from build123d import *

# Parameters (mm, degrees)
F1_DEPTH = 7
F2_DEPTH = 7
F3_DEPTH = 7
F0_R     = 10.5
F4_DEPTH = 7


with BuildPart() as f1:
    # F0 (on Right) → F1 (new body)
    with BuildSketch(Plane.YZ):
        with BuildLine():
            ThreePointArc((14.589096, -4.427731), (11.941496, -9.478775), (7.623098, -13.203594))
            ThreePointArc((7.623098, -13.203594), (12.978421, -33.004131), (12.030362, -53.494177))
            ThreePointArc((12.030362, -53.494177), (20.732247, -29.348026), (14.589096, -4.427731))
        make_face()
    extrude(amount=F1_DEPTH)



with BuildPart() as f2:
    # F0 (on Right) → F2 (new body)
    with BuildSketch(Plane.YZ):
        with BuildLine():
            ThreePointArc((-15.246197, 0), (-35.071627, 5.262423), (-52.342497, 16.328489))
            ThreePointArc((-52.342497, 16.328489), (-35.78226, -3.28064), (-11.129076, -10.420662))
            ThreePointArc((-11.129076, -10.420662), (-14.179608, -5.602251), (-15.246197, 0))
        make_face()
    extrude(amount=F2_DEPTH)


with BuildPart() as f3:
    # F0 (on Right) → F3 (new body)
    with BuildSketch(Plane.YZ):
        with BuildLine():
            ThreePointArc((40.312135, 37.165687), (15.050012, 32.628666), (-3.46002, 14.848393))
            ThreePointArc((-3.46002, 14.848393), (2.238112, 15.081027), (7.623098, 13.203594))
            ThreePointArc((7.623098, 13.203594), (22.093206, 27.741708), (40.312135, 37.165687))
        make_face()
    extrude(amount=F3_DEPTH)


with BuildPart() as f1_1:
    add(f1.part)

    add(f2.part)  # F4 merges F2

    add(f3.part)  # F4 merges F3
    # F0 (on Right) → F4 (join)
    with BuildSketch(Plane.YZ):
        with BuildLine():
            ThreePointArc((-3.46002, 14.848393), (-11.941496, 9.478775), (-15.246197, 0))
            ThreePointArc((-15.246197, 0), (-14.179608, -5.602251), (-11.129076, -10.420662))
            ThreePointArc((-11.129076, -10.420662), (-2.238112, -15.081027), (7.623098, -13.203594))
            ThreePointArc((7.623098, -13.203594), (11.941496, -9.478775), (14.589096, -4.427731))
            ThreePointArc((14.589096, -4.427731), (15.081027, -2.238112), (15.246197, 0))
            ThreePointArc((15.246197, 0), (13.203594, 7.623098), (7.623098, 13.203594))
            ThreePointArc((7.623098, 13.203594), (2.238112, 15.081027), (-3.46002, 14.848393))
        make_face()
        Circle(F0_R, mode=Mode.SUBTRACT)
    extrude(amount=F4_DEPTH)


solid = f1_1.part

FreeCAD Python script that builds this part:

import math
import FreeCAD as App
import Part
import Sketcher
from FreeCAD import Vector

doc = App.newDocument("Part")
body = doc.addObject("PartDesign::Body", "Body")

# Sketch on YZ plane
sketch1 = body.newObject("Sketcher::SketchObject", "Sketch")
sketch1.AttachmentSupport = (doc.getObject("YZ_Plane"), [""])
sketch1.MapMode = "FlatFace"
sketch1.addGeometry(Part.ArcOfCircle(Part.Circle(Vector(0, 0, 0), Vector(0, 0, 1), 15), math.radians(-60), math.radians(-17)), False)
sketch1.addGeometry(Part.ArcOfCircle(Part.Circle(Vector(-53, -40, 0), Vector(0, 0, 1), 66), math.radians(-12), math.radians(24)), False)
sketch1.addGeometry(Part.ArcOfCircle(Part.Circle(Vector(-24, -27, 0), Vector(0, 0, 1), 44), math.radians(-37), math.radians(31)), False)
sketch1.addConstraint(Sketcher.Constraint("Coincident", 0, 1, 1, 2))
sketch1.addConstraint(Sketcher.Constraint("Coincident", 1, 1, 2, 1))
sketch1.addConstraint(Sketcher.Constraint("Coincident", 2, 2, 0, 2))
sketch1.addConstraint(Sketcher.Constraint("Coincident", 0, 3, -1, 1))
sketch1.addConstraint(Sketcher.Constraint("Radius", 2, 44.315521))
sketch1.addConstraint(Sketcher.Constraint("Radius", 0, 15.246205))
sketch1.addConstraint(Sketcher.Constraint("Radius", 1, 66.352625))
sketch1.addConstraint(Sketcher.Constraint("DistanceX", 0, 1, 2, 2, 6.965998))
sketch1.addConstraint(Sketcher.Constraint("DistanceY", 0, 1, 0, 3, 13.2036))
sketch1.addConstraint(Sketcher.Constraint("DistanceX", 2, 3, 1, 1, 35.553501))
sketch1.addConstraint(Sketcher.Constraint("DistanceX", 1, 3, -1, 1, 52.98076))
pad1 = body.newObject("PartDesign::Pad", "Pad")
pad1.Profile = sketch1
pad1.Length = 7
body2 = doc.addObject("PartDesign::Body", "Body001")

# Sketch on YZ plane
sketch2 = body2.newObject("Sketcher::SketchObject", "Sketch001")
sketch2.AttachmentSupport = (doc.getObject("YZ_Plane001"), [""])
sketch2.MapMode = "FlatFace"
sketch2.addGeometry(Part.ArcOfCircle(Part.Circle(Vector(-8, 66, 0), Vector(0, 0, 1), 66), math.radians(-132), math.radians(-96)), False)
sketch2.addGeometry(Part.ArcOfCircle(Part.Circle(Vector(-12, 34, 0), Vector(0, 0, 1), 44), math.radians(-157), math.radians(-89)), False)
sketch2.addGeometry(Part.ArcOfCircle(Part.Circle(Vector(0, 0, 0), Vector(0, 0, 1), 15), math.radians(-180), math.radians(-137)), False)
sketch2.addConstraint(Sketcher.Constraint("Coincident", 0, 1, 1, 1))
sketch2.addConstraint(Sketcher.Constraint("Coincident", 1, 2, 2, 2))
sketch2.addConstraint(Sketcher.Constraint("Coincident", 2, 1, 0, 2))
sketch2.addConstraint(Sketcher.Constraint("PointOnObject", 2, 1, -1))
sketch2.addConstraint(Sketcher.Constraint("Radius", 2, 15.246209))
sketch2.addConstraint(Sketcher.Constraint("Radius", 0, 66.352623))
sketch2.addConstraint(Sketcher.Constraint("Radius", 1, 44.315517))
sketch2.addConstraint(Sketcher.Constraint("DistanceX", 0, 1, 2, 1, 37.0963))
sketch2.addConstraint(Sketcher.Constraint("DistanceY", -1, 1, 0, 1, 16.328489))
sketch2.addConstraint(Sketcher.Constraint("DistanceY", 1, 2, -1, 1, 10.420662))
sketch2.addConstraint(Sketcher.Constraint("DistanceY", 1, 3, 0, 3, 32.100561))
sketch2.addConstraint(Sketcher.Constraint("DistanceX", 0, 3, -1, 1, 8.340474))
pad2 = body2.newObject("PartDesign::Pad", "Pad001")
pad2.Profile = sketch2
pad2.Length = 7
body3 = doc.addObject("PartDesign::Body", "Body002")

# Sketch on YZ plane
sketch3 = body3.newObject("Sketcher::SketchObject", "Sketch002")
sketch3.AttachmentSupport = (doc.getObject("YZ_Plane002"), [""])
sketch3.MapMode = "FlatFace"
sketch3.addGeometry(Part.ArcOfCircle(Part.Circle(Vector(35, -7, 0), Vector(0, 0, 1), 44), math.radians(83), math.radians(151)), False)
sketch3.addGeometry(Part.ArcOfCircle(Part.Circle(Vector(0, 0, 0), Vector(0, 0, 1), 15), math.radians(60), math.radians(103)), False)
sketch3.addGeometry(Part.ArcOfCircle(Part.Circle(Vector(61, -26, 0), Vector(0, 0, 1), 66), math.radians(108), math.radians(144)), False)
sketch3.addConstraint(Sketcher.Constraint("Coincident", 0, 2, 1, 2))
sketch3.addConstraint(Sketcher.Constraint("Coincident", 1, 1, 2, 2))
sketch3.addConstraint(Sketcher.Constraint("Coincident", 2, 1, 0, 1))
sketch3.addConstraint(Sketcher.Constraint("Coincident", 1, 3, -1, 1))
sketch3.addConstraint(Sketcher.Constraint("Radius", 0, 44.315514))
sketch3.addConstraint(Sketcher.Constraint("Radius", 1, 15.246194))
sketch3.addConstraint(Sketcher.Constraint("Radius", 2, 66.352634))
sketch3.addConstraint(Sketcher.Constraint("DistanceY", 1, 1, 0, 2, 1.644799))
sketch3.addConstraint(Sketcher.Constraint("DistanceX", -1, 1, 0, 3, 35.17905))
sketch3.addConstraint(Sketcher.Constraint("DistanceY", 0, 3, -1, 1, 6.851539))
sketch3.addConstraint(Sketcher.Constraint("DistanceY", 2, 3, -1, 1, 25.77309))
pad3 = body3.newObject("PartDesign::Pad", "Pad002")
pad3.Profile = sketch3
pad3.Length = 7
body.AllowCompound = True
doc.recompute()

boolean = body.newObject("PartDesign::Boolean", "Boolean")
boolean.Type = "Fuse"
boolean.addObjects([body2])
doc.recompute()

boolean2 = body.newObject("PartDesign::Boolean", "Boolean001")
boolean2.Type = "Fuse"
boolean2.addObjects([body3])

# Sketch on YZ plane
sketch4 = body.newObject("Sketcher::SketchObject", "Sketch003")
sketch4.AttachmentSupport = (doc.getObject("YZ_Plane"), [""])
sketch4.MapMode = "FlatFace"
sketch4.addGeometry(Part.ArcOfCircle(Part.Circle(Vector(0, 0, 0), Vector(0, 0, 1), 15.2), math.radians(103), math.radians(180)), False)
sketch4.addGeometry(Part.ArcOfCircle(Part.Circle(Vector(0, 0, 0), Vector(0, 0, 1), 15.2), math.radians(-180), math.radians(-137)), False)
sketch4.addGeometry(Part.ArcOfCircle(Part.Circle(Vector(0, 0, 0), Vector(0, 0, 1), 15.2), math.radians(-137), math.radians(-60)), False)
sketch4.addGeometry(Part.ArcOfCircle(Part.Circle(Vector(0, 0, 0), Vector(0, 0, 1), 15.2), math.radians(-60), math.radians(-17)), False)
sketch4.addGeometry(Part.ArcOfCircle(Part.Circle(Vector(0, 0, 0), Vector(0, 0, 1), 15.2), math.radians(-16.88), math.radians(0)), False)
sketch4.addGeometry(Part.ArcOfCircle(Part.Circle(Vector(0, 0, 0), Vector(0, 0, 1), 15.2), math.radians(0), math.radians(60)), False)
sketch4.addGeometry(Part.ArcOfCircle(Part.Circle(Vector(0, 0, 0), Vector(0, 0, 1), 15.2), math.radians(60), math.radians(103)), False)
sketch4.addGeometry(Part.Circle(Vector(0, 0, 0), Vector(0, 0, 1), 10.5), False)
sketch4.addConstraint(Sketcher.Constraint("Tangent", 0, 2, 1, 1))
sketch4.addConstraint(Sketcher.Constraint("Tangent", 1, 2, 2, 1))
sketch4.addConstraint(Sketcher.Constraint("Tangent", 2, 2, 3, 1))
sketch4.addConstraint(Sketcher.Constraint("Tangent", 3, 2, 4, 1))
sketch4.addConstraint(Sketcher.Constraint("Tangent", 4, 2, 5, 1))
sketch4.addConstraint(Sketcher.Constraint("Tangent", 5, 2, 6, 1))
sketch4.addConstraint(Sketcher.Constraint("Tangent", 6, 2, 0, 1))
sketch4.addConstraint(Sketcher.Constraint("Coincident", 0, 3, -1, 1))
sketch4.addConstraint(Sketcher.Constraint("Coincident", 2, 3, -1, 1))
sketch4.addConstraint(Sketcher.Constraint("Coincident", 4, 3, -1, 1))
sketch4.addConstraint(Sketcher.Constraint("Coincident", 7, 3, -1, 1))
sketch4.addConstraint(Sketcher.Constraint("PointOnObject", 0, 2, -1))
sketch4.addConstraint(Sketcher.Constraint("PointOnObject", 4, 2, -1))
sketch4.addConstraint(Sketcher.Constraint("Vertical", 2, 2, 5, 2))
sketch4.addConstraint(Sketcher.Constraint("Diameter", 7, 21.0))
sketch4.addConstraint(Sketcher.Constraint("Radius", 0, 15.246199))
sketch4.addConstraint(Sketcher.Constraint("DistanceX", -1, 1, 2, 2, 7.623098))
sketch4.addConstraint(Sketcher.Constraint("DistanceX", 3, 2, 4, 2, 0.657101))
sketch4.addConstraint(Sketcher.Constraint("DistanceY", 5, 2, 6, 2, 1.644799))
sketch4.addConstraint(Sketcher.Constraint("DistanceX", 0, 2, 1, 2, 4.117121))
pad4 = body.newObject("PartDesign::Pad", "Pad003")
pad4.Profile = sketch4
pad4.Length = 7

doc.recompute()
